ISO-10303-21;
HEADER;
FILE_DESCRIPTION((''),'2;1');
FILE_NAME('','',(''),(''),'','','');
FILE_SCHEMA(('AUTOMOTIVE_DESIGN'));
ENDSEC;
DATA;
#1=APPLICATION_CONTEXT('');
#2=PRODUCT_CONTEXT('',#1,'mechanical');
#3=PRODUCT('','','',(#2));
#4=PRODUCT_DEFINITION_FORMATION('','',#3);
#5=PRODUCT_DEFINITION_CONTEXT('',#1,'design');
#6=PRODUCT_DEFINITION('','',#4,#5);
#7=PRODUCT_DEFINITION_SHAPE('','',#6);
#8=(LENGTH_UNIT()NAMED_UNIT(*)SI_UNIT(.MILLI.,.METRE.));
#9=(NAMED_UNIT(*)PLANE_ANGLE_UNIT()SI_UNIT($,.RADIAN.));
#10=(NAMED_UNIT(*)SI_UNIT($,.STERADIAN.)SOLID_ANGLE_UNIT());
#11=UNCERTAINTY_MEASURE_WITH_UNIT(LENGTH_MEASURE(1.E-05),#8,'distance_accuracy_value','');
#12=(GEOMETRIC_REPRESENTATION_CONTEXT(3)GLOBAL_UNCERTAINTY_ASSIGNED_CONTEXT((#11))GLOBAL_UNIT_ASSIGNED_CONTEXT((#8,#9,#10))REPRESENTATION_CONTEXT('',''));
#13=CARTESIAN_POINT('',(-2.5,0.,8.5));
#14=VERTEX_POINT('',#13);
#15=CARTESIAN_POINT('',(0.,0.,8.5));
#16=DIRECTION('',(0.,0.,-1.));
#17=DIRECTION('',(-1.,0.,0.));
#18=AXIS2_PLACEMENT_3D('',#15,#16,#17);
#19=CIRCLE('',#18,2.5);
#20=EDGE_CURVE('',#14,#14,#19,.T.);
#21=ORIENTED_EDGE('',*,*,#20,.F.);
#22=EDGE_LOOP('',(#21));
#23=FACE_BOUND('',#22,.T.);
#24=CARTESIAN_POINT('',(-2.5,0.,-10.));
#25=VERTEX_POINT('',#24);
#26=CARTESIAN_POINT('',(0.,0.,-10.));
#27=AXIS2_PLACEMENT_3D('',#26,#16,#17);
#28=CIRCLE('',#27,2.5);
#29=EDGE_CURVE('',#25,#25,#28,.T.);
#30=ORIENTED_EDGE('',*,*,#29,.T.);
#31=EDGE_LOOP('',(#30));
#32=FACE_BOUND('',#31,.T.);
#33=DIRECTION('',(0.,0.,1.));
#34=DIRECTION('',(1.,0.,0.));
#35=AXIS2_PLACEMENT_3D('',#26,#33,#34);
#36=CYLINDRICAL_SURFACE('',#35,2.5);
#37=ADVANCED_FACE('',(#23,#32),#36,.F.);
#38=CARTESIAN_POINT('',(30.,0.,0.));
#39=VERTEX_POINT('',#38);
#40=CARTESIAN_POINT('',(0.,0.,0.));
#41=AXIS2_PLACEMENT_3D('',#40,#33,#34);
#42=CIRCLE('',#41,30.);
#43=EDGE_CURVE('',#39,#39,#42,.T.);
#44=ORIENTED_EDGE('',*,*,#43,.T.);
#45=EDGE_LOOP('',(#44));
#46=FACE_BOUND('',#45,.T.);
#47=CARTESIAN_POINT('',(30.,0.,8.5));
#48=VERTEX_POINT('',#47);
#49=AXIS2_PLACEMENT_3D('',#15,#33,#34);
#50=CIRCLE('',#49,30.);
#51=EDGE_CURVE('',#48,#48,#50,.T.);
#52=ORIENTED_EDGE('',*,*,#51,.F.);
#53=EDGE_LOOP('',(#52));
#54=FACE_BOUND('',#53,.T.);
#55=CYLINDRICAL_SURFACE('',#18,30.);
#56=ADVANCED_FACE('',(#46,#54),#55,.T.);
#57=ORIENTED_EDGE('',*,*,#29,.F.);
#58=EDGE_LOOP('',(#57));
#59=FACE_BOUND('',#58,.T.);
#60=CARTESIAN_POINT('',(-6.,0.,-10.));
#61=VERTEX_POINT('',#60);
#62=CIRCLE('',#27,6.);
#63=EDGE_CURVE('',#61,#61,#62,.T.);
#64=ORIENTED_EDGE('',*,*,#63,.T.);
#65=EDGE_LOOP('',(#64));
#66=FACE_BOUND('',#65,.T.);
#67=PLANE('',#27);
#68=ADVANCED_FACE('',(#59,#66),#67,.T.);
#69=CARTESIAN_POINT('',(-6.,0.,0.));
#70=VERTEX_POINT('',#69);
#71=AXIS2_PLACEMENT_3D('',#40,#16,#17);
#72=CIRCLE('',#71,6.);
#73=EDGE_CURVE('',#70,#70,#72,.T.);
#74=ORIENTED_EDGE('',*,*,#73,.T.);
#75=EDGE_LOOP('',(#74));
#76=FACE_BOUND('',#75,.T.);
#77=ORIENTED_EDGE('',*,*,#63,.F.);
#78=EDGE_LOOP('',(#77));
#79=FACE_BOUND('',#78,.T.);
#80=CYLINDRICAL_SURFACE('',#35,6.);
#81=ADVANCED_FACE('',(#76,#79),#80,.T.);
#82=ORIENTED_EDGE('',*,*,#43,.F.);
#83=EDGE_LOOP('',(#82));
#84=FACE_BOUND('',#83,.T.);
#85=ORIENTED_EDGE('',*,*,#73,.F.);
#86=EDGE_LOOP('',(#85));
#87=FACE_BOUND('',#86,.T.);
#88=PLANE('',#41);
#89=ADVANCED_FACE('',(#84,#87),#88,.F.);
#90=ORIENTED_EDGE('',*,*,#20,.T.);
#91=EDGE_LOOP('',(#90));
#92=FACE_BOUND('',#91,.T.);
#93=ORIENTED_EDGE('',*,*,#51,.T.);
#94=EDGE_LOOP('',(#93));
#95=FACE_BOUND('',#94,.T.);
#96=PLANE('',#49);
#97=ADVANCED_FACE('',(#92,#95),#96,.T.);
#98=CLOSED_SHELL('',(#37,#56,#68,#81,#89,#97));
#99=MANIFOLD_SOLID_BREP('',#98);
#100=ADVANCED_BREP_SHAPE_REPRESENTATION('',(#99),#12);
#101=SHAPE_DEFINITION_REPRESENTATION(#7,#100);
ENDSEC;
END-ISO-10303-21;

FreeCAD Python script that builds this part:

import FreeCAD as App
import Part
import Sketcher
from FreeCAD import Vector

doc = App.newDocument("Part")
body = doc.addObject("PartDesign::Body", "Body")

# Sketch on XY plane
sketch1 = body.newObject("Sketcher::SketchObject", "Sketch")
sketch1.AttachmentSupport = (doc.getObject("XY_Plane"), [""])
sketch1.MapMode = "FlatFace"
sketch1.addGeometry(Part.Circle(Vector(0, 0, 0), Vector(0, 0, 1), 30), False)
sketch1.addConstraint([
    Sketcher.Constraint("Coincident", 0, 3, -1, 1),
    Sketcher.Constraint("Diameter", 0, 60.0),
])
pad1 = body.newObject("PartDesign::Pad", "Pad")
pad1.Profile = sketch1
pad1.Length = 8.5

# Sketch on XY plane
sketch2 = body.newObject("Sketcher::SketchObject", "Sketch001")
sketch2.AttachmentSupport = (doc.getObject("XY_Plane"), [""])
sketch2.MapMode = "FlatFace"
sketch2.addGeometry([
    Part.Circle(Vector(0, 0, 0), Vector(0, 0, 1), 6),
    Part.Circle(Vector(0, 0, 0), Vector(0, 0, 1), 2.5),
], False)
sketch2.addConstraint([
    Sketcher.Constraint("Coincident", 0, 3, -1, 1),
    Sketcher.Constraint("Coincident", 1, 3, -1, 1),
    Sketcher.Constraint("Diameter", 0, 12.0),
    Sketcher.Constraint("Diameter", 1, 5.0),
])
pad2 = body.newObject("PartDesign::Pad", "Pad001")
pad2.Profile = sketch2
pad2.Length = 10
pad2.Reversed = True

# Sketch on XY plane
sketch3 = body.newObject("Sketcher::SketchObject", "Sketch002")
sketch3.AttachmentSupport = (doc.getObject("XY_Plane"), [""])
sketch3.MapMode = "FlatFace"
sketch3.AttachmentOffset = App.Placement(Vector(0, 0, -10), App.Rotation())
sketch3.addGeometry(Part.Circle(Vector(0, 0, 0), Vector(0, 0, 1), 2.5), False)
sketch3.addConstraint([
    Sketcher.Constraint("Coincident", 0, 3, -1, 1),
    Sketcher.Constraint("Diameter", 0, 5.0),
])
pocket1 = body.newObject("PartDesign::Pocket", "Pocket")
pocket1.Profile = sketch3
pocket1.Type = "ThroughAll"
pocket1.Reversed = True

doc.recompute()
